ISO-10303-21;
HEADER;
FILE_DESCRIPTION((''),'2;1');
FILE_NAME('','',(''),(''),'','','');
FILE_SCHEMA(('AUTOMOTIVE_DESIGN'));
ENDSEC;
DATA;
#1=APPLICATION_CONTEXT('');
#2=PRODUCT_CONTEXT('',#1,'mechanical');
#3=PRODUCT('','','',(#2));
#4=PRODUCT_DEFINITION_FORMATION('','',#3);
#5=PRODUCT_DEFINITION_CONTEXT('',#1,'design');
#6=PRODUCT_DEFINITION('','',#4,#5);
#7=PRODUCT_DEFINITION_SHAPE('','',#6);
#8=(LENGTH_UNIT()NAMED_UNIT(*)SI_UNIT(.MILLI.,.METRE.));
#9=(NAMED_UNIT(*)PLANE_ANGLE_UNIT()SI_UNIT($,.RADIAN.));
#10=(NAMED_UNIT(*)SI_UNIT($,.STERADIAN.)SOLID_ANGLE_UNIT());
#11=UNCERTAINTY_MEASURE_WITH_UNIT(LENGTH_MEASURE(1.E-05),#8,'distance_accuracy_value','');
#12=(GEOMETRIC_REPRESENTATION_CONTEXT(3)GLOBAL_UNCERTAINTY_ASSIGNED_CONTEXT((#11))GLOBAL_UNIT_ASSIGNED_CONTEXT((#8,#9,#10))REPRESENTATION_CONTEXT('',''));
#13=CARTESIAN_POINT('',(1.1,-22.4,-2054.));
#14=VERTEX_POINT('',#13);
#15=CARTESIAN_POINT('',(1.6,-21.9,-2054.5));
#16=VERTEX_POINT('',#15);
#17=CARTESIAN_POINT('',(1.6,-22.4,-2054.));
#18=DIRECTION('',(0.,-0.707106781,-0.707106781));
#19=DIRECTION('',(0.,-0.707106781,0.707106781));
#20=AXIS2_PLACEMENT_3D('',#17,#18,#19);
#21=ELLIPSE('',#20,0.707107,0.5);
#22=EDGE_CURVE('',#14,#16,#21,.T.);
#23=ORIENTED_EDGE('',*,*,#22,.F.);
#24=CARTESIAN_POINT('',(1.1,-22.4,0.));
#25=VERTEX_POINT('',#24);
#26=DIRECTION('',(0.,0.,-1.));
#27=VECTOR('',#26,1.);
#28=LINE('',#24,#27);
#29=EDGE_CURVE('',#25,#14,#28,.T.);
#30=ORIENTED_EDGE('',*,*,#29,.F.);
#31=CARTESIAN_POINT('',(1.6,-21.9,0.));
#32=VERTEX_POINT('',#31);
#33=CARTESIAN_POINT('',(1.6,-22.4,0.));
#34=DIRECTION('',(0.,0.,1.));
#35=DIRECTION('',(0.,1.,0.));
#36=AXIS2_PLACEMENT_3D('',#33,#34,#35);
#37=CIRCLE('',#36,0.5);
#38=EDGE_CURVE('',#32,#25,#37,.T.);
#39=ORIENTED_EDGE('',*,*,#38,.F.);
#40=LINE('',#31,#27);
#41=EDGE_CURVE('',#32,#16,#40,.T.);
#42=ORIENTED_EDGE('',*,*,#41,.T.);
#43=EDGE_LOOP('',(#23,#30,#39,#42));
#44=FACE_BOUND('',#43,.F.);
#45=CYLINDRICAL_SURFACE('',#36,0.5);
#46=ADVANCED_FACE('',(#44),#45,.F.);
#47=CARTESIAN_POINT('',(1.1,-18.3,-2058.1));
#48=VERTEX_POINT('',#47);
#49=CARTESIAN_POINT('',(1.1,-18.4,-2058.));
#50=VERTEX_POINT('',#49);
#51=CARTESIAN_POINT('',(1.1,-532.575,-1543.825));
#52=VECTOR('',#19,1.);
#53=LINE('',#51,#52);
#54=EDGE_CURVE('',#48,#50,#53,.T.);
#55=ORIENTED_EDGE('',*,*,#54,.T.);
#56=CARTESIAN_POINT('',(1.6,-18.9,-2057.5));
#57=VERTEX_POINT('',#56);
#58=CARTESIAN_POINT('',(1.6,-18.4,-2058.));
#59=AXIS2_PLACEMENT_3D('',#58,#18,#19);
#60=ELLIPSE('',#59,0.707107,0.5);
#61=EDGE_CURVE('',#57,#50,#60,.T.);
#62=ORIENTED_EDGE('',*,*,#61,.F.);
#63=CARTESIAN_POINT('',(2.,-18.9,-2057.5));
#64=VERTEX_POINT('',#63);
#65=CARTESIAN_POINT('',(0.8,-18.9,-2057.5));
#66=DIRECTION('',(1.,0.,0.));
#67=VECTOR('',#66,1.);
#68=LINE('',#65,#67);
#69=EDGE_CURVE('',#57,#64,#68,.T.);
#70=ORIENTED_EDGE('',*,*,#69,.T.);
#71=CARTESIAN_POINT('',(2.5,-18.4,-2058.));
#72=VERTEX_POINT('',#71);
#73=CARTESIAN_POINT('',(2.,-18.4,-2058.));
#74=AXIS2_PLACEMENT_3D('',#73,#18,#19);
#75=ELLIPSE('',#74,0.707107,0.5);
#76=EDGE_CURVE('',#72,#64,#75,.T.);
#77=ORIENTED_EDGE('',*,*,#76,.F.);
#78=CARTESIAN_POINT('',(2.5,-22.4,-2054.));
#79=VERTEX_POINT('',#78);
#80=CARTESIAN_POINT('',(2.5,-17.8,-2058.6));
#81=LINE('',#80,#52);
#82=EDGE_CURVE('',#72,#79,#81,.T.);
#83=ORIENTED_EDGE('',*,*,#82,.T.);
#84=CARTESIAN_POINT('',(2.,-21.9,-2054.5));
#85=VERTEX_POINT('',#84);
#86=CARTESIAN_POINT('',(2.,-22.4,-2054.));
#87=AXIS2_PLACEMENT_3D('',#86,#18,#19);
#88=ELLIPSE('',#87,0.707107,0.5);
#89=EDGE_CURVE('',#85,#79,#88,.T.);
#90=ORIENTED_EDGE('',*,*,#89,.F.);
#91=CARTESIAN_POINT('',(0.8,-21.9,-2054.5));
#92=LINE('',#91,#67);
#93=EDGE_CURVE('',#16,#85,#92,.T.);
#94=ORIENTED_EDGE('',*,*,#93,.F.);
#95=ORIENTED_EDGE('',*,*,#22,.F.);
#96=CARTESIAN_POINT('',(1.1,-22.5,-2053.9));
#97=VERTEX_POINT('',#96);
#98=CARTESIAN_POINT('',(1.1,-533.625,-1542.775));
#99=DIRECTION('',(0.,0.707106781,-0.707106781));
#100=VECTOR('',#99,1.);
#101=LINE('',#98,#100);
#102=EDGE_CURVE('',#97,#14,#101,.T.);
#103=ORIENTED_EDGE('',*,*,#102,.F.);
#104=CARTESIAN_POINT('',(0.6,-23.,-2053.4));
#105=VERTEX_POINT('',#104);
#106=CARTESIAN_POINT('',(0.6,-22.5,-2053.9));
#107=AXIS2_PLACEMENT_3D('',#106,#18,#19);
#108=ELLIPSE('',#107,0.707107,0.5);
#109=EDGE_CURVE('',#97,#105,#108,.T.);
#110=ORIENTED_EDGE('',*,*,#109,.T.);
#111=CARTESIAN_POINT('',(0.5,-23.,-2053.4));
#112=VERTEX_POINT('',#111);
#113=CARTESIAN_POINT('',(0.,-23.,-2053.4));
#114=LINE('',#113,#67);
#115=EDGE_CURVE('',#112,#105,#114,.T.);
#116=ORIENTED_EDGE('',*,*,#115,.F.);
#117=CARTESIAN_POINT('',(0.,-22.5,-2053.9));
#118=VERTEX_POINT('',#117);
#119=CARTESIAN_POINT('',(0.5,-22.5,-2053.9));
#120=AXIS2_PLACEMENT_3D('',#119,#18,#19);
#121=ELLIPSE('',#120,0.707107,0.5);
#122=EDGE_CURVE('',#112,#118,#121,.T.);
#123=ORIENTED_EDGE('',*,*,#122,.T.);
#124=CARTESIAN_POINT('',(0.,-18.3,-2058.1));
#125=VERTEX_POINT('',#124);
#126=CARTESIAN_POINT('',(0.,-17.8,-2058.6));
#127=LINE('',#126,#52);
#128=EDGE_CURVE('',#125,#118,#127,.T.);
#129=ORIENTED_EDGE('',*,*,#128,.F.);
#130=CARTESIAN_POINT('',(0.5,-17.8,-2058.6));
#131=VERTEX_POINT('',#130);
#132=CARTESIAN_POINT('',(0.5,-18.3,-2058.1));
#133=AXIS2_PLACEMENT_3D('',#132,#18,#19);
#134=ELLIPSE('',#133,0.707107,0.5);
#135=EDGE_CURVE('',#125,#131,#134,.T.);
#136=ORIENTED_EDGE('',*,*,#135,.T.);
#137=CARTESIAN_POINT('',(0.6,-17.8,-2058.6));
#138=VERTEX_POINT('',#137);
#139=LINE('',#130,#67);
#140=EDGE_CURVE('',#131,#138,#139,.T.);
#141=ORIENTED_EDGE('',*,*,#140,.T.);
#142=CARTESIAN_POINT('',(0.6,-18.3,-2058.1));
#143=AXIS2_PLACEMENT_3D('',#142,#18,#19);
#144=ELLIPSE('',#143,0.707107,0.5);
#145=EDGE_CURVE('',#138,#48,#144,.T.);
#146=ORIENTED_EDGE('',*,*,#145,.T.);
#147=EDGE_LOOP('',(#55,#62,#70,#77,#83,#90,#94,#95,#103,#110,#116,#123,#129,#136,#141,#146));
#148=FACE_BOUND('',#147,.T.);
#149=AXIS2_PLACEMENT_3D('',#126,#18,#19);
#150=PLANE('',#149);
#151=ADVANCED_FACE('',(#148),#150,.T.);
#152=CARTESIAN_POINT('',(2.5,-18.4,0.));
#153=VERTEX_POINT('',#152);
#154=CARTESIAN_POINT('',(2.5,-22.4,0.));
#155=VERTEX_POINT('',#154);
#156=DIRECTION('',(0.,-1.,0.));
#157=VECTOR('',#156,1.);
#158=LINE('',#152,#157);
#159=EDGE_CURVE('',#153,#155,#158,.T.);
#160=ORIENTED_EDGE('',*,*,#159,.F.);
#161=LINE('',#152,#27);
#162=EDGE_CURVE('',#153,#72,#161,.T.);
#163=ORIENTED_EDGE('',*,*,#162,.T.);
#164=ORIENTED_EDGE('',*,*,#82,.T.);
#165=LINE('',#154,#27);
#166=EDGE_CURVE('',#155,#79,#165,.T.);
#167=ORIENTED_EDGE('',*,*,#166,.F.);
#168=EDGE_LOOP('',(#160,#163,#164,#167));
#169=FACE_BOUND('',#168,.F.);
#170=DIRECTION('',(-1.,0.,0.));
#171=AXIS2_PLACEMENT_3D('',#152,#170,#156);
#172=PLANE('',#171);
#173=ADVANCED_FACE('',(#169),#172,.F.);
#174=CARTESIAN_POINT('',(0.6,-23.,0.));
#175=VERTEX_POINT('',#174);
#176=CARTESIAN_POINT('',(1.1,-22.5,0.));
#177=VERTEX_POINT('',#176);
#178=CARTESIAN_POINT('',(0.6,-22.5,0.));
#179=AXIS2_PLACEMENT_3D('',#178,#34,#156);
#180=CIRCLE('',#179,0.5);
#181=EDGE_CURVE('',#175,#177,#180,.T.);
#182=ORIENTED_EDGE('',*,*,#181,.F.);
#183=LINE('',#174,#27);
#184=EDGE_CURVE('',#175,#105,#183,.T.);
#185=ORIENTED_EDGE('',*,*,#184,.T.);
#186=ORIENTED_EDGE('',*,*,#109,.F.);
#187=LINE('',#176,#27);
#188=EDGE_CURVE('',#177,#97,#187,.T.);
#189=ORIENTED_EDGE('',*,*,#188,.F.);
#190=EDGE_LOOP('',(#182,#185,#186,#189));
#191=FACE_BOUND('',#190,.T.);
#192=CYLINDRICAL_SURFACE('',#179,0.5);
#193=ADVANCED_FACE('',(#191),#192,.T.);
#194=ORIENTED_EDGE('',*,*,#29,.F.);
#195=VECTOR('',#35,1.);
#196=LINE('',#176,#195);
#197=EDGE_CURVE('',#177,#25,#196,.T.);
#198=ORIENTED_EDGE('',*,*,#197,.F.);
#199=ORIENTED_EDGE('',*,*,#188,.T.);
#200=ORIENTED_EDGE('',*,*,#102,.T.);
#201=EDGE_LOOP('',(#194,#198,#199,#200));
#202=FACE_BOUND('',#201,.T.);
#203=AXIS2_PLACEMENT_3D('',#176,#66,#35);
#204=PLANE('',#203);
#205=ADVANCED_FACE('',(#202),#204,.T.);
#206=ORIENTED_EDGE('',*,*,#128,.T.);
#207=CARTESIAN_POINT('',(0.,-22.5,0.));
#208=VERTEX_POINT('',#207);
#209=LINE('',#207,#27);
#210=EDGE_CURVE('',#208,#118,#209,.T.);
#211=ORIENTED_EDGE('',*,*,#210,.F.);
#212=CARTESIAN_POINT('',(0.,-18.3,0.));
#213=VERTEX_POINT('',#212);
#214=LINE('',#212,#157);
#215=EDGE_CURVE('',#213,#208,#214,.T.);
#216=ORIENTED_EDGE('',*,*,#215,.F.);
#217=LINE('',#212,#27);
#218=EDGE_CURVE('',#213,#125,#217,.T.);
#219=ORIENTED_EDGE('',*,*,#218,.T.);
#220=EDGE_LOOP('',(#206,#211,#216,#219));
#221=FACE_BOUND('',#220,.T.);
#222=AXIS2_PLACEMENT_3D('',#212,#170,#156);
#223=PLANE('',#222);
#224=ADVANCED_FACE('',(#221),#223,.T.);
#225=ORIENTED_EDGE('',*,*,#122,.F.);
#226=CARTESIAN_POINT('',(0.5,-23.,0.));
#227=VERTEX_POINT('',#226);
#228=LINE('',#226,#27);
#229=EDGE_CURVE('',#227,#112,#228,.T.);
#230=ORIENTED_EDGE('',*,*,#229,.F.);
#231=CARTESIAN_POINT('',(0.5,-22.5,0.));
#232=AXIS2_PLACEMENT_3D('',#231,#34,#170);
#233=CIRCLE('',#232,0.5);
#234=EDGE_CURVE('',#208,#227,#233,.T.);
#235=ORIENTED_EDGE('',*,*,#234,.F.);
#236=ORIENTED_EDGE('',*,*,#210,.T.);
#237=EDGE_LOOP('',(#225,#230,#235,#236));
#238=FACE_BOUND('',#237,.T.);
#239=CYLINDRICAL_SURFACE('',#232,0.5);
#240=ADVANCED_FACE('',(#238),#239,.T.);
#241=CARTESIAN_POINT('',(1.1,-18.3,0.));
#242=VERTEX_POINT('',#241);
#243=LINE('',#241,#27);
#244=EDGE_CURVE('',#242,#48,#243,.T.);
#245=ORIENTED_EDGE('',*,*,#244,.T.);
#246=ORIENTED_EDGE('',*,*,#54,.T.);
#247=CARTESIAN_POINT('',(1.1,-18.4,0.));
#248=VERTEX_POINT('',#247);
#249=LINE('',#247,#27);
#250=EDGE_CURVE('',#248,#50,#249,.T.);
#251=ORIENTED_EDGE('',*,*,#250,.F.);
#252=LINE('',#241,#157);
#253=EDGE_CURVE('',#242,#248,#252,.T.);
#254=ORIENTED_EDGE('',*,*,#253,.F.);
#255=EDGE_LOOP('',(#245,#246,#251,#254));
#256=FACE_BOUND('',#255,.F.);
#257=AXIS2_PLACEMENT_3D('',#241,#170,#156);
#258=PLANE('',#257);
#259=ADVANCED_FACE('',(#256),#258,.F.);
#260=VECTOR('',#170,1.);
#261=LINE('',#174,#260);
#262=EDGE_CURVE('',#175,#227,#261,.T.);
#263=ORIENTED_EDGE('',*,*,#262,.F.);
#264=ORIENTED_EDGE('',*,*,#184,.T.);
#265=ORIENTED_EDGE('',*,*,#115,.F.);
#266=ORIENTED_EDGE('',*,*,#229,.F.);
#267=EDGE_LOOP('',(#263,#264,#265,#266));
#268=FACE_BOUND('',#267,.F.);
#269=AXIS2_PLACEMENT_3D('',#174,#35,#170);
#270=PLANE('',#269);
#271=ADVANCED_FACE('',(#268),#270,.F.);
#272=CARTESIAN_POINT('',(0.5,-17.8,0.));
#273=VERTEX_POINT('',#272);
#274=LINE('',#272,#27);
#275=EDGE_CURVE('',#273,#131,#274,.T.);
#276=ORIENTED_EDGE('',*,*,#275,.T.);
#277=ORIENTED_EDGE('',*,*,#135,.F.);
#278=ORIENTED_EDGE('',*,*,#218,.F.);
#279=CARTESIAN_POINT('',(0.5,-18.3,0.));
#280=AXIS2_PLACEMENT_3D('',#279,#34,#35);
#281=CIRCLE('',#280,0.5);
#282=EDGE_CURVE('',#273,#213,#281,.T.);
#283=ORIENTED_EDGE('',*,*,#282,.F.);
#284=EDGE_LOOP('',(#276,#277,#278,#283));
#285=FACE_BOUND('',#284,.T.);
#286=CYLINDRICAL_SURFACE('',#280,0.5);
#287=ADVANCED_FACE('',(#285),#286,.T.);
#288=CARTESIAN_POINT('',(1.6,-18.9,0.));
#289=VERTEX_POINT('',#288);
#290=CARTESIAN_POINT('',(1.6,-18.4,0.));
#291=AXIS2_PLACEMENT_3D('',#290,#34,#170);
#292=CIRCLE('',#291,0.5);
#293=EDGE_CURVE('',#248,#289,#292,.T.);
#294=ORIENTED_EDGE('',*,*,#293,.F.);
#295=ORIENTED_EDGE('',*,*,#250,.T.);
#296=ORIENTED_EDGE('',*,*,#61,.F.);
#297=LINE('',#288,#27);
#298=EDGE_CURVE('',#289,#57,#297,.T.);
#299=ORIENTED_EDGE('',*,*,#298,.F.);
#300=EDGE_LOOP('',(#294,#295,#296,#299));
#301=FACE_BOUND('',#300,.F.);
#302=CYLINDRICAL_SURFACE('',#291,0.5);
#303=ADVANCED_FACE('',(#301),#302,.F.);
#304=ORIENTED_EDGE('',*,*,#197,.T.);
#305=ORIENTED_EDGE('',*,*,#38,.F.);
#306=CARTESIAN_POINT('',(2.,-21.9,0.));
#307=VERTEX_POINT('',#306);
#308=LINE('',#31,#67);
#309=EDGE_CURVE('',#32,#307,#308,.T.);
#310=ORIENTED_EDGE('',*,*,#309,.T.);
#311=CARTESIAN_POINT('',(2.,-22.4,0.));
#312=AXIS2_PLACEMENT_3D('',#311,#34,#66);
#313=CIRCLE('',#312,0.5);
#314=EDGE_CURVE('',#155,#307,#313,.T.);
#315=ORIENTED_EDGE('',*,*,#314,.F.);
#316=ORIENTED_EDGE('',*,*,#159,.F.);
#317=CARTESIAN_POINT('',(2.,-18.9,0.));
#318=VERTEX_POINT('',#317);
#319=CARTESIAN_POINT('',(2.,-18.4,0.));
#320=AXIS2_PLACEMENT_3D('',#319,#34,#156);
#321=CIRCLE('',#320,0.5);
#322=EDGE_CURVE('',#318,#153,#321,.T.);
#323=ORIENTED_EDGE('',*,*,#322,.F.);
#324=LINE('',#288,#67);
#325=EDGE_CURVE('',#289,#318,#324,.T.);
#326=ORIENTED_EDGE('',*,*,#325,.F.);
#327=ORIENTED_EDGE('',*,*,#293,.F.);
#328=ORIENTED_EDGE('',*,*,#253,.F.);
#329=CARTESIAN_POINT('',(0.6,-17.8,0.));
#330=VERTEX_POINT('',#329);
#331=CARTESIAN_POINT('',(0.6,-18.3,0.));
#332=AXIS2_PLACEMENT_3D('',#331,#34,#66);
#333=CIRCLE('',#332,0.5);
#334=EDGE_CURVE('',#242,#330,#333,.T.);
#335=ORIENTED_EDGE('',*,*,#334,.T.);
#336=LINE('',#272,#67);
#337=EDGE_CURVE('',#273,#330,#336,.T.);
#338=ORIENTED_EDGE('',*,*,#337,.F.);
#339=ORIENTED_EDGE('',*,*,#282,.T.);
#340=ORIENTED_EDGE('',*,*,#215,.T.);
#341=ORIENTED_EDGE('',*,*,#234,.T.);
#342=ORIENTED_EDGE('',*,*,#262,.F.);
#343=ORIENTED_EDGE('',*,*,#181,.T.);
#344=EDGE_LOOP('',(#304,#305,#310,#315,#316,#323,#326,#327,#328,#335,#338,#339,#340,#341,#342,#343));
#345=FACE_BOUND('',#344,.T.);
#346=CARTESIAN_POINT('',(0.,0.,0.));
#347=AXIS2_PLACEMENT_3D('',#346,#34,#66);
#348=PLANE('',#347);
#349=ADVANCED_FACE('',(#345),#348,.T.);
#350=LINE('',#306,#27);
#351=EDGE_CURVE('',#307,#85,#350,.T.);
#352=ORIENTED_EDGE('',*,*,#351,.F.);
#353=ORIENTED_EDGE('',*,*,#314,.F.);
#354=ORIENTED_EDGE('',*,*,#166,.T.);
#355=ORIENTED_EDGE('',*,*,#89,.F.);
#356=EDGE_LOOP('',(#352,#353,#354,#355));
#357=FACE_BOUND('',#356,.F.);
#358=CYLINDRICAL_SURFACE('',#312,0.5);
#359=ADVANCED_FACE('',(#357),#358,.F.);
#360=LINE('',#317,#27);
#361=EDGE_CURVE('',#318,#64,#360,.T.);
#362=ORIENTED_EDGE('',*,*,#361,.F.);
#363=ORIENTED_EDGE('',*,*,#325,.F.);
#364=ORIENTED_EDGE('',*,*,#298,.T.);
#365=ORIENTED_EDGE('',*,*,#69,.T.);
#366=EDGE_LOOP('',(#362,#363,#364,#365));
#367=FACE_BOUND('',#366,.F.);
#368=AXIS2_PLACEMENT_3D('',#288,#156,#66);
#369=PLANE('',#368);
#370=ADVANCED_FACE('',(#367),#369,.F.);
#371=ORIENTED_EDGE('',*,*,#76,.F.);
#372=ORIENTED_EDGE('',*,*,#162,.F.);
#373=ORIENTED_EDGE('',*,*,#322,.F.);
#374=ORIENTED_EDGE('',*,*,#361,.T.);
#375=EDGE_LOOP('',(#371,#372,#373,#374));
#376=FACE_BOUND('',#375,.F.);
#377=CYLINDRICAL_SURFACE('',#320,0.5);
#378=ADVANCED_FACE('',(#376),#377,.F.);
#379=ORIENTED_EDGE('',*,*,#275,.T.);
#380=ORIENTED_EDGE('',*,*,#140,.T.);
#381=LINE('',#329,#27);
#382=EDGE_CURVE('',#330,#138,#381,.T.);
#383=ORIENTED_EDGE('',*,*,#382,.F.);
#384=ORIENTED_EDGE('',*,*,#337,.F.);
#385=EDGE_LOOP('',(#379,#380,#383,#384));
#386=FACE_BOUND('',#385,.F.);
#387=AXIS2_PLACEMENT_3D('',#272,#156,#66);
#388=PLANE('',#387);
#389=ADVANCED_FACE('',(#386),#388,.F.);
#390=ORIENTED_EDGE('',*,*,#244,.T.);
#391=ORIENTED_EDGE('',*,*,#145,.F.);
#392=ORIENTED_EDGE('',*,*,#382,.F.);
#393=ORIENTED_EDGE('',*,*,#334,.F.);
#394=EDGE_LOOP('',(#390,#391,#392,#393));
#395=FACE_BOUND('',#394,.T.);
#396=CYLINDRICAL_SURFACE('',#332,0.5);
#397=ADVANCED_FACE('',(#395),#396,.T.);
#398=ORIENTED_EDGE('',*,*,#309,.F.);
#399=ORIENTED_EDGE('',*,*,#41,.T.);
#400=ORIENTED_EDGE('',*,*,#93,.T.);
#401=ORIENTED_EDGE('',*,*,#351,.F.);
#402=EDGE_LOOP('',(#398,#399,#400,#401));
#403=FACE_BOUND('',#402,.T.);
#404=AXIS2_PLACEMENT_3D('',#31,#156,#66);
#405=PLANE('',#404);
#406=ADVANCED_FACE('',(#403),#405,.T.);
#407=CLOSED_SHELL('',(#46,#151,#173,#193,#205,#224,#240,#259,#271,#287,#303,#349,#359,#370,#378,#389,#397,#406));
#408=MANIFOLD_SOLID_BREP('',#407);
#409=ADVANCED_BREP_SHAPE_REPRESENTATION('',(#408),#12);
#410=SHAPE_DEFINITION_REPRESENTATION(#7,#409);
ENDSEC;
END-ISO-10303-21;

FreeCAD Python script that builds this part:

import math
import FreeCAD as App
import Part
import Sketcher
from FreeCAD import Vector

doc = App.newDocument("Part")
params = doc.addObject("Spreadsheet::Sheet", "Params")
for row, (alias, value) in enumerate([
    ("sketch1_radius", "0.5 mm"),
    ("sketch1_height", "4 mm"),
    ("pad1_length", "2058.6 mm"),
    ("sketch2_width", "5.2 mm"),
    ("pocket1_length", "2.5 mm"),
], start=1):
    params.set(f"A{row}", alias)
    params.set(f"B{row}", "=" + value)
    params.setAlias(f"B{row}", alias)

body = doc.addObject("PartDesign::Body", "Body")

sketch1 = doc.addObject("Sketcher::SketchObject", "Sketch")
body.addObject(sketch1)
sketch1.AttachmentSupport = (doc.XY_Plane, [""])
sketch1.MapMode = "FlatFace"
sketch1.addGeometry(Part.LineSegment(Vector(0.5, -23, 0), Vector(0.6, -23, 0)), False)
sketch1.addGeometry(Part.ArcOfCircle(Part.Circle(Vector(0.6, -22.5, 0), Vector(0, 0, 1), 0.5), math.radians(-90), math.radians(0)), False)
sketch1.addGeometry(Part.LineSegment(Vector(1.1, -22.5, 0), Vector(1.1, -22.4, 0)), False)
sketch1.addGeometry(Part.ArcOfCircle(Part.Circle(Vector(1.6, -22.4, 0), Vector(0, 0, 1), 0.5), math.radians(90), math.radians(180)), False)
sketch1.addGeometry(Part.LineSegment(Vector(1.6, -21.9, 0), Vector(2, -21.9, 0)), False)
sketch1.addGeometry(Part.ArcOfCircle(Part.Circle(Vector(2, -22.4, 0), Vector(0, 0, 1), 0.5), math.radians(0), math.radians(90)), False)
sketch1.addGeometry(Part.LineSegment(Vector(2.5, -22.4, 0), Vector(2.5, -18.4, 0)), False)
sketch1.addGeometry(Part.ArcOfCircle(Part.Circle(Vector(2, -18.4, 0), Vector(0, 0, 1), 0.5), math.radians(-90), math.radians(0)), False)
sketch1.addGeometry(Part.LineSegment(Vector(2, -18.9, 0), Vector(1.6, -18.9, 0)), False)
sketch1.addGeometry(Part.ArcOfCircle(Part.Circle(Vector(1.6, -18.4, 0), Vector(0, 0, 1), 0.5), math.radians(180), math.radians(270)), False)
sketch1.addGeometry(Part.LineSegment(Vector(1.1, -18.4, 0), Vector(1.1, -18.3, 0)), False)
sketch1.addGeometry(Part.ArcOfCircle(Part.Circle(Vector(0.6, -18.3, 0), Vector(0, 0, 1), 0.5), math.radians(0), math.radians(90)), False)
sketch1.addGeometry(Part.LineSegment(Vector(0.6, -17.8, 0), Vector(0.5, -17.8, 0)), False)
sketch1.addGeometry(Part.ArcOfCircle(Part.Circle(Vector(0.5, -18.3, 0), Vector(0, 0, 1), 0.5), math.radians(90), math.radians(180)), False)
sketch1.addGeometry(Part.LineSegment(Vector(0, -18.3, 0), Vector(0, -22.5, 0)), False)
sketch1.addGeometry(Part.ArcOfCircle(Part.Circle(Vector(0.5, -22.5, 0), Vector(0, 0, 1), 0.5), math.radians(180), math.radians(270)), False)
sketch1.addConstraint(Sketcher.Constraint("Tangent", 0, 2, 1, 1))
sketch1.addConstraint(Sketcher.Constraint("Tangent", 1, 2, 2, 1))
sketch1.addConstraint(Sketcher.Constraint("Tangent", 2, 2, 3, 2))
sketch1.addConstraint(Sketcher.Constraint("Tangent", 3, 1, 4, 1))
sketch1.addConstraint(Sketcher.Constraint("Tangent", 4, 2, 5, 2))
sketch1.addConstraint(Sketcher.Constraint("Tangent", 5, 1, 6, 1))
sketch1.addConstraint(Sketcher.Constraint("Tangent", 6, 2, 7, 2))
sketch1.addConstraint(Sketcher.Constraint("Tangent", 7, 1, 8, 1))
sketch1.addConstraint(Sketcher.Constraint("Tangent", 8, 2, 9, 2))
sketch1.addConstraint(Sketcher.Constraint("Tangent", 9, 1, 10, 1))
sketch1.addConstraint(Sketcher.Constraint("Tangent", 10, 2, 11, 1))
sketch1.addConstraint(Sketcher.Constraint("Tangent", 11, 2, 12, 1))
sketch1.addConstraint(Sketcher.Constraint("Tangent", 12, 2, 13, 1))
sketch1.addConstraint(Sketcher.Constraint("Tangent", 13, 2, 14, 1))
sketch1.addConstraint(Sketcher.Constraint("Tangent", 14, 2, 15, 1))
sketch1.addConstraint(Sketcher.Constraint("Tangent", 15, 2, 0, 1))
sketch1.addConstraint(Sketcher.Constraint("Horizontal", 0))
sketch1.addConstraint(Sketcher.Constraint("Vertical", 2))
sketch1.addConstraint(Sketcher.Constraint("Horizontal", 4))
sketch1.addConstraint(Sketcher.Constraint("Vertical", 6))
sketch1.addConstraint(Sketcher.Constraint("Horizontal", 8))
sketch1.addConstraint(Sketcher.Constraint("Vertical", 10))
sketch1.addConstraint(Sketcher.Constraint("Horizontal", 12))
sketch1.addConstraint(Sketcher.Constraint("Vertical", 14))
sketch1.addConstraint(Sketcher.Constraint("Equal", 1, 3))
sketch1.addConstraint(Sketcher.Constraint("Equal", 3, 5))
sketch1.addConstraint(Sketcher.Constraint("Equal", 5, 7))
sketch1.addConstraint(Sketcher.Constraint("Equal", 7, 9))
sketch1.addConstraint(Sketcher.Constraint("Equal", 9, 11))
sketch1.addConstraint(Sketcher.Constraint("Equal", 11, 13))
sketch1.addConstraint(Sketcher.Constraint("Equal", 13, 15))
sketch1.addConstraint(Sketcher.Constraint("PointOnObject", 13, 2, -2))
sketch1.addConstraint(Sketcher.Constraint("Vertical", 3, 3, 9, 3))
sketch1.addConstraint(Sketcher.Constraint("Equal", 12, 2))
sketch1.addConstraint(Sketcher.Constraint("Equal", 2, 10))
sketch1.addConstraint(Sketcher.Constraint("Radius", 1, 0.5))
sketch1.addConstraint(Sketcher.Constraint("DistanceX", -1, 1, 1, 2, 1.1))
sketch1.addConstraint(Sketcher.Constraint("DistanceX", 13, 3, 7, 3, 1.5))
sketch1.addConstraint(Sketcher.Constraint("DistanceY", 6, 1, 6, 2, 4.0))
sketch1.addConstraint(Sketcher.Constraint("DistanceY", 0, 2, -1, 1, 23.0))
sketch1.setExpression("Constraints[35]", "Params.sketch1_radius")
sketch1.setExpression("Constraints[38]", "Params.sketch1_height")
pad1 = doc.addObject("PartDesign::Pad", "Pad")
body.addObject(pad1)
pad1.Profile = sketch1
pad1.setExpression("Length", "Params.pad1_length")
pad1.Reversed = True

sketch2 = doc.addObject("Sketcher::SketchObject", "Sketch001")
body.addObject(sketch2)
sketch2.AttachmentSupport = (doc.YZ_Plane, [""])
sketch2.MapMode = "FlatFace"
sketch2.addGeometry(Part.LineSegment(Vector(-18, -2059, 0), Vector(-23, -2059, 0)), False)
sketch2.addGeometry(Part.LineSegment(Vector(-23, -2059, 0), Vector(-23, -2053, 0)), False)
sketch2.addGeometry(Part.LineSegment(Vector(-23, -2053, 0), Vector(-18, -2059, 0)), False)
sketch2.addConstraint(Sketcher.Constraint("Coincident", 0, 2, 1, 1))
sketch2.addConstraint(Sketcher.Constraint("Coincident", 1, 2, 2, 1))
sketch2.addConstraint(Sketcher.Constraint("Coincident", 2, 2, 0, 1))
sketch2.addConstraint(Sketcher.Constraint("Horizontal", 0))
sketch2.addConstraint(Sketcher.Constraint("Vertical", 1))
sketch2.addConstraint(Sketcher.Constraint("Equal", 0, 1))
sketch2.addConstraint(Sketcher.Constraint("DistanceX", 0, 2, 0, 1, 5.2))
sketch2.addConstraint(Sketcher.Constraint("DistanceX", 0, 2, -1, 1, 23.0))
sketch2.addConstraint(Sketcher.Constraint("DistanceY", 0, 2, -1, 1, 2058.6))
sketch2.setExpression("Constraints[6]", "Params.sketch2_width")
pocket1 = doc.addObject("PartDesign::Pocket", "Pocket")
body.addObject(pocket1)
pocket1.Profile = sketch2
pocket1.setExpression("Length", "Params.pocket1_length")
pocket1.Reversed = True

doc.recompute()
